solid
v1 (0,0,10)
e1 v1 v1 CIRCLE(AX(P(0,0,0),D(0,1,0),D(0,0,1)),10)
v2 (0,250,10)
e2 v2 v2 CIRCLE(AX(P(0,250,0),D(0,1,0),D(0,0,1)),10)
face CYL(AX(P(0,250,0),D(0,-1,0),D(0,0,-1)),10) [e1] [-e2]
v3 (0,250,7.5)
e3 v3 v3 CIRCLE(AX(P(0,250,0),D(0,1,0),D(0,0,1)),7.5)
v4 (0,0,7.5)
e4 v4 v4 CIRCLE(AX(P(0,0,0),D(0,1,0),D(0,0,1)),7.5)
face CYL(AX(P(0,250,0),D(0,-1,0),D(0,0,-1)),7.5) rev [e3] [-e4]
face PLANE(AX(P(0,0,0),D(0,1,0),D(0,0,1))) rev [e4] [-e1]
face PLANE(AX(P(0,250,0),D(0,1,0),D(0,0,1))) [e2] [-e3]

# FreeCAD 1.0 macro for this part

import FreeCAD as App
import Part
import Sketcher

V = App.Vector

doc = App.newDocument("Part")
body = doc.addObject("PartDesign::Body", "Body")

# Sketch on XZ plane
sketch1 = doc.addObject("Sketcher::SketchObject", "Sketch")
body.addObject(sketch1)
sketch1.AttachmentSupport = (doc.XZ_Plane, [""])
sketch1.MapMode = "FlatFace"
sketch1.addGeometry([
    Part.Circle(V(0, 0, 0), V(0, 0, 1), 10),
    Part.Circle(V(0, 0, 0), V(0, 0, 1), 8),
], False)
sketch1.addConstraint([
    Sketcher.Constraint("Coincident", 0, 3, -1, 1),
    Sketcher.Constraint("Coincident", 1, 3, -1, 1),
    Sketcher.Constraint("Diameter", 0, 20.0),
    Sketcher.Constraint("Diameter", 1, 15.0),
])
pad1 = doc.addObject("PartDesign::Pad", "Pad")
body.addObject(pad1)
pad1.Profile = sketch1
pad1.Length = 250
pad1.Reversed = True

doc.recompute()
